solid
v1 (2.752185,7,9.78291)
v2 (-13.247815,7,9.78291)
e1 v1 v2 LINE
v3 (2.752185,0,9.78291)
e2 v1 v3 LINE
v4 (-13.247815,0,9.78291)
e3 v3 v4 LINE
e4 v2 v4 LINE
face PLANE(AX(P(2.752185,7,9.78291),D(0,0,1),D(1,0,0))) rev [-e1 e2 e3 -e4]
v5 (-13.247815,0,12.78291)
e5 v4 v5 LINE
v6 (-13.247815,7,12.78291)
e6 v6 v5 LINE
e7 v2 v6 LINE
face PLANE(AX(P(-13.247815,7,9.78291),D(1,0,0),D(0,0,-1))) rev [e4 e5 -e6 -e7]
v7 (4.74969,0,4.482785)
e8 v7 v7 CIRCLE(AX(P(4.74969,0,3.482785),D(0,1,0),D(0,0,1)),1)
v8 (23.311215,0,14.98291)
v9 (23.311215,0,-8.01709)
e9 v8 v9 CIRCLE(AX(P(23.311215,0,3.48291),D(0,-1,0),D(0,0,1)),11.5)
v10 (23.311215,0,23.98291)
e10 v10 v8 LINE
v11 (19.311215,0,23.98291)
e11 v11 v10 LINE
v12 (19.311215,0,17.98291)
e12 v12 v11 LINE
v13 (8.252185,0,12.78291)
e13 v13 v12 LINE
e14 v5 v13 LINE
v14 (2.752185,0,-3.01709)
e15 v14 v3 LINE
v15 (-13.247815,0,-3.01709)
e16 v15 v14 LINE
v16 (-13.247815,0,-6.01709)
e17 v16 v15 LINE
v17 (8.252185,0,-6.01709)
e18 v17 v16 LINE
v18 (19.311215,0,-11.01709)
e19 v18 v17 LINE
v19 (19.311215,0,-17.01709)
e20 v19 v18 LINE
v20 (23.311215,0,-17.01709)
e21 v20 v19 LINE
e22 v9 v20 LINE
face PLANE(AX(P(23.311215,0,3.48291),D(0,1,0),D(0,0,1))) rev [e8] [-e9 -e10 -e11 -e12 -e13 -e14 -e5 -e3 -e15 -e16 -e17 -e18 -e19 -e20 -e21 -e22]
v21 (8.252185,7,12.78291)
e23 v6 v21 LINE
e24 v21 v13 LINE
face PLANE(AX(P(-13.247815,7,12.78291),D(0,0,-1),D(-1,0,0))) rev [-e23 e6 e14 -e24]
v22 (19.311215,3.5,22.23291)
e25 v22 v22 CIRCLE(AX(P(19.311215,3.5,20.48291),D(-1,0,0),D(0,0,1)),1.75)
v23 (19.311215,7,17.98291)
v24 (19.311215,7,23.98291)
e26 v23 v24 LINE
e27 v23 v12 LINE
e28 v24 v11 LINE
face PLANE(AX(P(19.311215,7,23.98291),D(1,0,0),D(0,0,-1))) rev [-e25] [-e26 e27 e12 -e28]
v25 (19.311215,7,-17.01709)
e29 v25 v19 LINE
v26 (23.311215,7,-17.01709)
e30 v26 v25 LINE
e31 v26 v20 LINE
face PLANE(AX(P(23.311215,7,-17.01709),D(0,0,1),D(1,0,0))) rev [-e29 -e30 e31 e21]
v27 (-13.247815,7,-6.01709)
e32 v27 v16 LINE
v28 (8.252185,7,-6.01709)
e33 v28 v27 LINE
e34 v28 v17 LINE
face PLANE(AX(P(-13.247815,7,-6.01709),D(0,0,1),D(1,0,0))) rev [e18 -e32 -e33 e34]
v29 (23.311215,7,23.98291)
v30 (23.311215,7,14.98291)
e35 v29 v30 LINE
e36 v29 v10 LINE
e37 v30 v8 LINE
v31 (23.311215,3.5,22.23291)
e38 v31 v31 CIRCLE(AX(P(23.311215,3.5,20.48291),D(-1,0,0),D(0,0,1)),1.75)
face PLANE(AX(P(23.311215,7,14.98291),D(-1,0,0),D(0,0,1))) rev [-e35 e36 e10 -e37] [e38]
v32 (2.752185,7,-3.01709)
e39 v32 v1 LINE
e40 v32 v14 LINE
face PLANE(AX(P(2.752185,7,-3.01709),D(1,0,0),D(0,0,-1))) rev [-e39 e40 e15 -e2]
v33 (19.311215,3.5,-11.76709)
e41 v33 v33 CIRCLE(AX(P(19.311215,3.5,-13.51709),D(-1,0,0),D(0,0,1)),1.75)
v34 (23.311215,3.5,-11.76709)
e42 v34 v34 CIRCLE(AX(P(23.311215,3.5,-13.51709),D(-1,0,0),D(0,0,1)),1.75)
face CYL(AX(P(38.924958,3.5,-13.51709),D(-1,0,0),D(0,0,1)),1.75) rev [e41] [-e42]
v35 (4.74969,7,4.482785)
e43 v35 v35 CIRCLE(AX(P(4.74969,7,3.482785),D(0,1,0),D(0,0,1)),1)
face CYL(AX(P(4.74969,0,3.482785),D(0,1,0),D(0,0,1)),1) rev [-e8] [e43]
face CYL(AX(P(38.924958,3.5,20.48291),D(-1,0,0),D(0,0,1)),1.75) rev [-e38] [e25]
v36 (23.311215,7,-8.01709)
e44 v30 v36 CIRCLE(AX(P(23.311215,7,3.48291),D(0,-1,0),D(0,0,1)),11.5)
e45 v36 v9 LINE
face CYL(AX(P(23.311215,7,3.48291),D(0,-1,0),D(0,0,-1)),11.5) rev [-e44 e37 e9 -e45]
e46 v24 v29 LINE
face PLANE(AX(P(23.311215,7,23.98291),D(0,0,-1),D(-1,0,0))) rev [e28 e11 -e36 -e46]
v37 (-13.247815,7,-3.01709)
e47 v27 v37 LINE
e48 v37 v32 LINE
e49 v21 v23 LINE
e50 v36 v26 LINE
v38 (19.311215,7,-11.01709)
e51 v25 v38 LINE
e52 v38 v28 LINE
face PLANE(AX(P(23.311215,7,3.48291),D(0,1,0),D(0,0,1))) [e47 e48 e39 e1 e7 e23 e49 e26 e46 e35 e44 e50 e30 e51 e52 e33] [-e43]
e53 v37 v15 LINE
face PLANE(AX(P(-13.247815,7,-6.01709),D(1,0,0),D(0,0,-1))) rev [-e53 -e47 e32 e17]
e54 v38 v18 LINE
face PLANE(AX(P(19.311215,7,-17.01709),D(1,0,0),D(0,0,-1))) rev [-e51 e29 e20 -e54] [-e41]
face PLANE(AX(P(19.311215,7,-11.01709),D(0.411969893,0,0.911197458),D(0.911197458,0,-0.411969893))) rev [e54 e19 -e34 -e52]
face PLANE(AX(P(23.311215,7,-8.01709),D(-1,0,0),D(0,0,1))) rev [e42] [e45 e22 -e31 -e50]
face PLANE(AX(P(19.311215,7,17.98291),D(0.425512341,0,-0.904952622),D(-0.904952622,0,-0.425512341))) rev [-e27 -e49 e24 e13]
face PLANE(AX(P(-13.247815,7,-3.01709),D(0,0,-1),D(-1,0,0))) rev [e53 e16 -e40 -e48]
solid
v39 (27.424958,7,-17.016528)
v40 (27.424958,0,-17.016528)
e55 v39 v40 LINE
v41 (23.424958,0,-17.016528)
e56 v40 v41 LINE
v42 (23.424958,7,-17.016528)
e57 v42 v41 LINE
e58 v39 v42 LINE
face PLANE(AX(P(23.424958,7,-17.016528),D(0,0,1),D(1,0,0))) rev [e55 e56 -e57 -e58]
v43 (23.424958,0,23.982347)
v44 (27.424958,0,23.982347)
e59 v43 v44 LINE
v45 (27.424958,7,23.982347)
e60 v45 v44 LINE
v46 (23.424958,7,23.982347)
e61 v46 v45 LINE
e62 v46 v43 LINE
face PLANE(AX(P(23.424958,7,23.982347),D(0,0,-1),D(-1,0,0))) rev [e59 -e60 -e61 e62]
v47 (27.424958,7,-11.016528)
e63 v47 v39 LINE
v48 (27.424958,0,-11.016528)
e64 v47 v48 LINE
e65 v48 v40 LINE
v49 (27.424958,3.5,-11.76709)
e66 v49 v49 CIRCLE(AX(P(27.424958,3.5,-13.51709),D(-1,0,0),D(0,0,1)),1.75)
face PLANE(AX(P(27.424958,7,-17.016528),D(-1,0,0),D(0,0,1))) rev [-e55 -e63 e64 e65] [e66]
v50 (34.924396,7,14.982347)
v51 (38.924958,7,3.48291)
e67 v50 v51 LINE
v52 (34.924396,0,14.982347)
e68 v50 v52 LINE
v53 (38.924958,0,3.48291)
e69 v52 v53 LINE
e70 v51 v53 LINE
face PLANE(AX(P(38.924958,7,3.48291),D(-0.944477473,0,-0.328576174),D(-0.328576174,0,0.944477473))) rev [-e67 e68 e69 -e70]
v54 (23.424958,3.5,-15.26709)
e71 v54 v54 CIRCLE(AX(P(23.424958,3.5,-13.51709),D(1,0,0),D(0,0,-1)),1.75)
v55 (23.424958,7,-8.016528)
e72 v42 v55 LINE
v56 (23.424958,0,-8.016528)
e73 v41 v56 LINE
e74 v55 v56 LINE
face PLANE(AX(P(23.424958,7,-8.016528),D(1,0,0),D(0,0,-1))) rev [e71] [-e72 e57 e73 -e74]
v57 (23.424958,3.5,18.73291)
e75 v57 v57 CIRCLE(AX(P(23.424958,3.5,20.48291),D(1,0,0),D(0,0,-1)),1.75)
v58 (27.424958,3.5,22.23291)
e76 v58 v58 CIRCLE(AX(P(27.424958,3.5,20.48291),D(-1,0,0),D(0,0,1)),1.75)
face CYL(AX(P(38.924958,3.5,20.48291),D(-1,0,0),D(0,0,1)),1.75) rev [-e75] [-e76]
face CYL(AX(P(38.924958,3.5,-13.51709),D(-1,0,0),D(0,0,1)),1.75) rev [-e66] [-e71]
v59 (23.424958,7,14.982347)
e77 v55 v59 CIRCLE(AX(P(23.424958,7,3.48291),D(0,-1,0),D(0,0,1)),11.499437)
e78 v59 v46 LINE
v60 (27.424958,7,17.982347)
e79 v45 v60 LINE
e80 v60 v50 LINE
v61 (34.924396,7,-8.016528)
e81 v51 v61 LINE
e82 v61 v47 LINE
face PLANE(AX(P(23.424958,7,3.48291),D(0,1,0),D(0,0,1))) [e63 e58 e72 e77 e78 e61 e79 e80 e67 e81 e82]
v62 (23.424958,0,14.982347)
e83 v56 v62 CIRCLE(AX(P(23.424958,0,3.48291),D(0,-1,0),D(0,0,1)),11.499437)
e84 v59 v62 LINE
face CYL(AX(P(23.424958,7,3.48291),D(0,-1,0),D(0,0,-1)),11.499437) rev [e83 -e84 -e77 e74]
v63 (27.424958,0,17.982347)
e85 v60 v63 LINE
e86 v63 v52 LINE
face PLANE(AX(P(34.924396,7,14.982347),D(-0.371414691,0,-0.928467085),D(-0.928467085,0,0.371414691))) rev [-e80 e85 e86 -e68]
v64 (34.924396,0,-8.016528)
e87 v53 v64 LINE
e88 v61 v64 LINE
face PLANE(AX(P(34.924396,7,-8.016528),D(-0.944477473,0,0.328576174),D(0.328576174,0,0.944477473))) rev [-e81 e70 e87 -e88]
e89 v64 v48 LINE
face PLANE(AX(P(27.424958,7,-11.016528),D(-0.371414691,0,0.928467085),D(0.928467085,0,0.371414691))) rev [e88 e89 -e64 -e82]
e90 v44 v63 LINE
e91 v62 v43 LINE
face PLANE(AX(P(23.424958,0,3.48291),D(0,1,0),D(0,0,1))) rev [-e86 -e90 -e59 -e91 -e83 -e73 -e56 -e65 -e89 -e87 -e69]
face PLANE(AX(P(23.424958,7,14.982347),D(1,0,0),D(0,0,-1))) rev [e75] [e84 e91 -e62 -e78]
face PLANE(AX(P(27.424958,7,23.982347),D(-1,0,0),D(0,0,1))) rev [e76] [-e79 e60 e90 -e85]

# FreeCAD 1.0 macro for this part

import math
import FreeCAD as App
import Part
import Sketcher
from FreeCAD import Vector

doc = App.newDocument("Part")
body = doc.addObject("PartDesign::Body", "Body")

# Sketch on XZ plane
sketch1 = body.newObject("Sketcher::SketchObject", "Sketch")
sketch1.AttachmentSupport = (doc.getObject("XZ_Plane"), [""])
sketch1.MapMode = "FlatFace"
sketch1.addGeometry([
    Part.LineSegment(Vector(-13.2, -6, 0), Vector(-13.2, -3, 0)),  # 0
    Part.LineSegment(Vector(-13.2, -3, 0), Vector(2.8, -3, 0)),  # 1
    Part.LineSegment(Vector(2.8, -3, 0), Vector(2.8, 9.8, 0)),  # 2
    Part.LineSegment(Vector(2.8, 9.8, 0), Vector(-13.2, 9.8, 0)),  # 3
    Part.LineSegment(Vector(-13.2, 9.8, 0), Vector(-13.2, 12.8, 0)),  # 4
    Part.LineSegment(Vector(-13.2, 12.8, 0), Vector(8.3, 12.8, 0)),  # 5
    Part.LineSegment(Vector(8.3, 12.8, 0), Vector(19.3, 18, 0)),  # 6
    Part.LineSegment(Vector(19.3, 18, 0), Vector(19.3, 24, 0)),  # 7
    Part.LineSegment(Vector(19.3, 24, 0), Vector(23.3, 24, 0)),  # 8
    Part.LineSegment(Vector(23.3, 24, 0), Vector(23.3, 15, 0)),  # 9
    Part.ArcOfCircle(Part.Circle(Vector(23.3, 3.5, 0), Vector(0, 0, 1), 11.5), math.radians(90), math.radians(270)),  # 10
    Part.LineSegment(Vector(23.3, -8, 0), Vector(23.3, -17, 0)),  # 11
    Part.LineSegment(Vector(23.3, -17, 0), Vector(19.3, -17, 0)),  # 12
    Part.LineSegment(Vector(19.3, -17, 0), Vector(19.3, -11, 0)),  # 13
    Part.LineSegment(Vector(19.3, -11, 0), Vector(8.3, -6, 0)),  # 14
    Part.LineSegment(Vector(8.3, -6, 0), Vector(-13.2, -6, 0)),  # 15
], False)
sketch1.addConstraint([
    Sketcher.Constraint("Coincident", 0, 2, 1, 1),
    Sketcher.Constraint("Coincident", 1, 2, 2, 1),
    Sketcher.Constraint("Coincident", 2, 2, 3, 1),
    Sketcher.Constraint("Coincident", 3, 2, 4, 1),
    Sketcher.Constraint("Coincident", 4, 2, 5, 1),
    Sketcher.Constraint("Coincident", 5, 2, 6, 1),
    Sketcher.Constraint("Coincident", 6, 2, 7, 1),
    Sketcher.Constraint("Coincident", 7, 2, 8, 1),
    Sketcher.Constraint("Coincident", 8, 2, 9, 1),
    Sketcher.Constraint("Coincident", 9, 2, 10, 1),
    Sketcher.Constraint("Coincident", 10, 2, 11, 1),
    Sketcher.Constraint("Coincident", 11, 2, 12, 1),
    Sketcher.Constraint("Coincident", 12, 2, 13, 1),
    Sketcher.Constraint("Coincident", 13, 2, 14, 1),
    Sketcher.Constraint("Coincident", 14, 2, 15, 1),
    Sketcher.Constraint("Coincident", 15, 2, 0, 1),
    Sketcher.Constraint("Vertical", 0),
    Sketcher.Constraint("Horizontal", 1),
    Sketcher.Constraint("Vertical", 2),
    Sketcher.Constraint("Horizontal", 3),
    Sketcher.Constraint("Vertical", 4),
    Sketcher.Constraint("Horizontal", 5),
    Sketcher.Constraint("Vertical", 7),
    Sketcher.Constraint("Horizontal", 8),
    Sketcher.Constraint("Vertical", 9),
    Sketcher.Constraint("Vertical", 11),
    Sketcher.Constraint("Horizontal", 12),
    Sketcher.Constraint("Vertical", 13),
    Sketcher.Constraint("Horizontal", 15),
    Sketcher.Constraint("Vertical", 0, 2, 3, 2),
    Sketcher.Constraint("Vertical", 10, 3, 8, 2),
    Sketcher.Constraint("Vertical", 9, 2, 10, 2),
    Sketcher.Constraint("Vertical", 7, 2, 12, 2),
    Sketcher.Constraint("Vertical", 5, 2, 14, 2),
    Sketcher.Constraint("Equal", 0, 4),
    Sketcher.Constraint("Equal", 9, 11),
    Sketcher.Constraint("Equal", 7, 13),
    Sketcher.Constraint("Radius", 10, 11.5),
    Sketcher.Constraint("DistanceX", 1, 1, 1, 2, 16.0),
    Sketcher.Constraint("DistanceX", 8, 1, 8, 2, 4.0),
    Sketcher.Constraint("DistanceY", 0, 1, 0, 2, 3.0),
    Sketcher.Constraint("DistanceY", 7, 1, 7, 2, 6.0),
    Sketcher.Constraint("DistanceY", 9, 2, 9, 1, 9.0),
    Sketcher.Constraint("DistanceX", 5, 1, 5, 2, 21.5),
    Sketcher.Constraint("DistanceY", 2, 1, 2, 2, 12.8),
    Sketcher.Constraint("DistanceY", 1, 2, 6, 2, 21.0),
    Sketcher.Constraint("Distance", 14, 12.136809),
    Sketcher.Constraint("DistanceY", -1, 1, 10, 3, 3.48291),
    Sketcher.Constraint("DistanceX", -1, 1, 10, 3, 23.311215),
])
pad1 = body.newObject("PartDesign::Pad", "Pad")
pad1.Profile = sketch1
pad1.Length = 7
pad1.Reversed = True
body2 = doc.addObject("PartDesign::Body", "Body001")

# Sketch on XZ plane
sketch2 = body2.newObject("Sketcher::SketchObject", "Sketch001")
sketch2.AttachmentSupport = (doc.getObject("XZ_Plane001"), [""])
sketch2.MapMode = "FlatFace"
sketch2.addGeometry([
    Part.LineSegment(Vector(23.4, 15, 0), Vector(23.4, 24, 0)),  # 0
    Part.LineSegment(Vector(23.4, 24, 0), Vector(27.4, 24, 0)),  # 1
    Part.LineSegment(Vector(27.4, 24, 0), Vector(27.4, 18, 0)),  # 2
    Part.LineSegment(Vector(27.4, 18, 0), Vector(34.9, 15, 0)),  # 3
    Part.LineSegment(Vector(34.9, 15, 0), Vector(38.9, 3.5, 0)),  # 4
    Part.LineSegment(Vector(38.9, 3.5, 0), Vector(34.9, -8, 0)),  # 5
    Part.LineSegment(Vector(34.9, -8, 0), Vector(27.4, -11, 0)),  # 6
    Part.LineSegment(Vector(27.4, -11, 0), Vector(27.4, -17, 0)),  # 7
    Part.LineSegment(Vector(27.4, -17, 0), Vector(23.4, -17, 0)),  # 8
    Part.LineSegment(Vector(23.4, -17, 0), Vector(23.4, -8, 0)),  # 9
    Part.ArcOfCircle(Part.Circle(Vector(23.4, 3.5, 0), Vector(0, 0, 1), 11.5), math.radians(-90), math.radians(90)),  # 10
], False)
sketch2.addConstraint([
    Sketcher.Constraint("Coincident", 0, 2, 1, 1),
    Sketcher.Constraint("Coincident", 1, 2, 2, 1),
    Sketcher.Constraint("Coincident", 2, 2, 3, 1),
    Sketcher.Constraint("Coincident", 3, 2, 4, 1),
    Sketcher.Constraint("Coincident", 4, 2, 5, 1),
    Sketcher.Constraint("Coincident", 5, 2, 6, 1),
    Sketcher.Constraint("Coincident", 6, 2, 7, 1),
    Sketcher.Constraint("Coincident", 7, 2, 8, 1),
    Sketcher.Constraint("Coincident", 8, 2, 9, 1),
    Sketcher.Constraint("Coincident", 9, 2, 10, 1),
    Sketcher.Constraint("Coincident", 10, 2, 0, 1),
    Sketcher.Constraint("Vertical", 0),
    Sketcher.Constraint("Horizontal", 1),
    Sketcher.Constraint("Vertical", 2),
    Sketcher.Constraint("Vertical", 7),
    Sketcher.Constraint("Horizontal", 8),
    Sketcher.Constraint("Vertical", 9),
    Sketcher.Constraint("Horizontal", 10, 3, 4, 2),
    Sketcher.Constraint("Horizontal", 5, 2, 9, 2),
    Sketcher.Constraint("Horizontal", 3, 2, 10, 2),
    Sketcher.Constraint("Vertical", 10, 3, 0, 2),
    Sketcher.Constraint("Vertical", 3, 2, 5, 2),
    Sketcher.Constraint("Vertical", 2, 2, 6, 2),
    Sketcher.Constraint("Vertical", 0, 2, 8, 2),
    Sketcher.Constraint("Equal", 2, 7),
    Sketcher.Constraint("Equal", 0, 9),
    Sketcher.Constraint("DistanceX", 1, 1, 1, 2, 4.0),
    Sketcher.Constraint("DistanceY", 0, 1, 0, 2, 9.0),
    Sketcher.Constraint("DistanceY", 2, 2, 2, 1, 6.0),
    Sketcher.Constraint("DistanceX", 10, 3, 4, 2, 15.5),
    Sketcher.Constraint("Radius", 10, 11.499437),
    Sketcher.Constraint("Distance", 4, 12.175449),
    Sketcher.Constraint("DistanceX", -1, 1, 10, 3, 23.424958),
    Sketcher.Constraint("DistanceY", -1, 1, 10, 3, 3.48291),
])
pad2 = body2.newObject("PartDesign::Pad", "Pad001")
pad2.Profile = sketch2
pad2.Length = 7
pad2.Reversed = True
body3 = doc.addObject("PartDesign::Body", "Body002")

# Sketch on YZ plane
sketch3 = body3.newObject("Sketcher::SketchObject", "Sketch002")
sketch3.AttachmentSupport = (doc.getObject("YZ_Plane002"), [""])
sketch3.MapMode = "FlatFace"
sketch3.AttachmentOffset = App.Placement(Vector(0, 0, 19.311215), App.Rotation())
sketch3.addGeometry(Part.Circle(Vector(3.5, 20.5, 0), Vector(0, 0, 1), 1.8), False)
sketch3.addConstraint([
    Sketcher.Constraint("Diameter", 0, 3.5),
    Sketcher.Constraint("DistanceX", -1, 1, 0, 3, 3.5),
    Sketcher.Constraint("DistanceY", -1, 1, 0, 3, 20.48291),
])
pad3 = body3.newObject("PartDesign::Pad", "Pad002")
pad3.Profile = sketch3
pad3.Length = 42.039863
doc.recompute()

body4 = doc.addObject("PartDesign::Body", "Body003")
body4.BaseFeature = body3
boolean = body.newObject("PartDesign::Boolean", "Boolean")
boolean.Type = "Cut"
boolean.addObjects([body4])
doc.recompute()

boolean2 = body2.newObject("PartDesign::Boolean", "Boolean001")
boolean2.Type = "Cut"
boolean2.addObjects([body3])
body5 = doc.addObject("PartDesign::Body", "Body004")

# Sketch on YZ plane
sketch4 = body5.newObject("Sketcher::SketchObject", "Sketch003")
sketch4.AttachmentSupport = (doc.getObject("YZ_Plane004"), [""])
sketch4.MapMode = "FlatFace"
sketch4.AttachmentOffset = App.Placement(Vector(0, 0, 19.311215), App.Rotation())
sketch4.addGeometry(Part.Circle(Vector(3.5, -13.5, 0), Vector(0, 0, 1), 1.8), False)
sketch4.addConstraint([
    Sketcher.Constraint("Diameter", 0, 3.5),
    Sketcher.Constraint("DistanceX", -1, 1, 0, 3, 3.5),
    Sketcher.Constraint("DistanceY", 0, 3, -1, 1, 13.51709),
])
pad4 = body5.newObject("PartDesign::Pad", "Pad003")
pad4.Profile = sketch4
pad4.Length = 42.039863
doc.recompute()

body6 = doc.addObject("PartDesign::Body", "Body005")
body6.BaseFeature = body5
boolean3 = body.newObject("PartDesign::Boolean", "Boolean002")
boolean3.Type = "Cut"
boolean3.addObjects([body6])
doc.recompute()

# Sketch on XZ plane
sketch5 = body.newObject("Sketcher::SketchObject", "Sketch004")
sketch5.AttachmentSupport = (doc.getObject("XZ_Plane"), [""])
sketch5.MapMode = "FlatFace"
sketch5.AttachmentOffset = App.Placement(Vector(0, 0, -7), App.Rotation())
sketch5.addGeometry(Part.Circle(Vector(4.7, 3.5, 0), Vector(0, 0, 1), 1), False)
sketch5.addConstraint([
    Sketcher.Constraint("Diameter", 0, 2.0),
    Sketcher.Constraint("DistanceX", -1, 1, 0, 3, 4.74969),
    Sketcher.Constraint("DistanceY", -1, 1, 0, 3, 3.482785),
])
pocket1 = body.newObject("PartDesign::Pocket", "Pocket")
pocket1.Profile = sketch5
pocket1.Type = "ThroughAll"
pocket1.Reversed = True
doc.recompute()

boolean4 = body2.newObject("PartDesign::Boolean", "Boolean003")
boolean4.Type = "Cut"
boolean4.addObjects([body5])

doc.recompute()
